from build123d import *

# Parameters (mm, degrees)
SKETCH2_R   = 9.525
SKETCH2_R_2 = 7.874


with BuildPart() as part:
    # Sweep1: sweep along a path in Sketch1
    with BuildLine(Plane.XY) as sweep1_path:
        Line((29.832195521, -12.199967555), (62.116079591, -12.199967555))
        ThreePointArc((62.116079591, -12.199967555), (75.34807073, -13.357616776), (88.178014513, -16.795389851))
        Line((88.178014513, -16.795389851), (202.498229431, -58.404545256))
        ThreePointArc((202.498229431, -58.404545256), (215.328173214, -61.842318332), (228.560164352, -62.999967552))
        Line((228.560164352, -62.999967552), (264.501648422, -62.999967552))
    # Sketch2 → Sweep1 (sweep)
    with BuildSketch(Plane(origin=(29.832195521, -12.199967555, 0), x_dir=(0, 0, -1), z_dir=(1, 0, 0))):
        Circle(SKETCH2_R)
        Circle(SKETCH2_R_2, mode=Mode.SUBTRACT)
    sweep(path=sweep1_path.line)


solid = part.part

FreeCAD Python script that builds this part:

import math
import FreeCAD as App
import Part
import Sketcher
Q = App.Units.Quantity

doc = App.newDocument("Part")
body = doc.addObject("PartDesign::Body", "Body")

# Sketch on YZ plane
sketch1 = body.newObject("Sketcher::SketchObject", "Sketch")
sketch1.AttachmentSupport = (doc.getObject("YZ_Plane"), [""])
sketch1.MapMode = "FlatFace"
sketch1.AttachmentOffset = App.Placement(App.Vector(0, 0, 29.832196), App.Rotation())
sketch1.addGeometry(Part.Circle(App.Vector(-12, 0, 0), App.Vector(0, 0, 1), 10), False)
sketch1.addGeometry(Part.Circle(App.Vector(-12, 0, 0), App.Vector(0, 0, 1), 8), False)
sketch1.addConstraint(Sketcher.Constraint("Coincident", 1, 3, 0, 3))
sketch1.addConstraint(Sketcher.Constraint("PointOnObject", 0, 3, -1))
sketch1.addConstraint(Sketcher.Constraint("Diameter", 0, Q("0.75 in")))
sketch1.addConstraint(Sketcher.Constraint("Diameter", 1, Q("0.62 in")))
sketch1.addConstraint(Sketcher.Constraint("DistanceX", 0, 3, -1, 1, 12.199968))

# Sketch on XY plane
sketch2 = body.newObject("Sketcher::SketchObject", "Sketch001")
sketch2.AttachmentSupport = (doc.getObject("XY_Plane"), [""])
sketch2.MapMode = "FlatFace"
sketch2.addGeometry(Part.LineSegment(App.Vector(30, -12, 0), App.Vector(62, -12, 0)), False)
sketch2.addGeometry(Part.ArcOfCircle(Part.Circle(App.Vector(62, -88, 0), App.Vector(0, 0, 1), 76), math.radians(70), math.radians(90)), False)
sketch2.addGeometry(Part.LineSegment(App.Vector(88, -17, 0), App.Vector(202, -58, 0)), False)
sketch2.addGeometry(Part.ArcOfCircle(Part.Circle(App.Vector(229, 13, 0), App.Vector(0, 0, 1), 76), math.radians(-110), math.radians(-90)), False)
sketch2.addGeometry(Part.LineSegment(App.Vector(229, -63, 0), App.Vector(265, -63, 0)), False)
sketch2.addConstraint(Sketcher.Constraint("Tangent", 0, 2, 1, 2))
sketch2.addConstraint(Sketcher.Constraint("Tangent", 1, 1, 2, 1))
sketch2.addConstraint(Sketcher.Constraint("Tangent", 2, 2, 3, 1))
sketch2.addConstraint(Sketcher.Constraint("Tangent", 3, 2, 4, 1))
sketch2.addConstraint(Sketcher.Constraint("Horizontal", 0))
sketch2.addConstraint(Sketcher.Constraint("Horizontal", 4))
sketch2.addConstraint(Sketcher.Constraint("Equal", 1, 3))
sketch2.addConstraint(Sketcher.Constraint("Radius", 1, Q("3 in")))
sketch2.addConstraint(Sketcher.Constraint("Angle", 2, Q("-20 deg")))
sketch2.addConstraint(Sketcher.Constraint("DistanceY", 1, 3, 3, 3, Q("4 in")))
sketch2.addConstraint(Sketcher.Constraint("DistanceX", 0, 1, 0, 2, 32.283884))
sketch2.addConstraint(Sketcher.Constraint("DistanceX", 4, 1, 4, 2, 35.941484))
sketch2.addConstraint(Sketcher.Constraint("DistanceX", -1, 1, 1, 3, 62.11608))
sketch2.addConstraint(Sketcher.Constraint("DistanceY", 1, 1, -1, 1, 16.79539))
doc.recompute()

additivepipe = body.newObject("PartDesign::AdditivePipe", "AdditivePipe")
additivepipe.Profile = sketch1
additivepipe.Spine = (sketch2, ["Edge1", "Edge2", "Edge3", "Edge4", "Edge5"])

doc.recompute()
